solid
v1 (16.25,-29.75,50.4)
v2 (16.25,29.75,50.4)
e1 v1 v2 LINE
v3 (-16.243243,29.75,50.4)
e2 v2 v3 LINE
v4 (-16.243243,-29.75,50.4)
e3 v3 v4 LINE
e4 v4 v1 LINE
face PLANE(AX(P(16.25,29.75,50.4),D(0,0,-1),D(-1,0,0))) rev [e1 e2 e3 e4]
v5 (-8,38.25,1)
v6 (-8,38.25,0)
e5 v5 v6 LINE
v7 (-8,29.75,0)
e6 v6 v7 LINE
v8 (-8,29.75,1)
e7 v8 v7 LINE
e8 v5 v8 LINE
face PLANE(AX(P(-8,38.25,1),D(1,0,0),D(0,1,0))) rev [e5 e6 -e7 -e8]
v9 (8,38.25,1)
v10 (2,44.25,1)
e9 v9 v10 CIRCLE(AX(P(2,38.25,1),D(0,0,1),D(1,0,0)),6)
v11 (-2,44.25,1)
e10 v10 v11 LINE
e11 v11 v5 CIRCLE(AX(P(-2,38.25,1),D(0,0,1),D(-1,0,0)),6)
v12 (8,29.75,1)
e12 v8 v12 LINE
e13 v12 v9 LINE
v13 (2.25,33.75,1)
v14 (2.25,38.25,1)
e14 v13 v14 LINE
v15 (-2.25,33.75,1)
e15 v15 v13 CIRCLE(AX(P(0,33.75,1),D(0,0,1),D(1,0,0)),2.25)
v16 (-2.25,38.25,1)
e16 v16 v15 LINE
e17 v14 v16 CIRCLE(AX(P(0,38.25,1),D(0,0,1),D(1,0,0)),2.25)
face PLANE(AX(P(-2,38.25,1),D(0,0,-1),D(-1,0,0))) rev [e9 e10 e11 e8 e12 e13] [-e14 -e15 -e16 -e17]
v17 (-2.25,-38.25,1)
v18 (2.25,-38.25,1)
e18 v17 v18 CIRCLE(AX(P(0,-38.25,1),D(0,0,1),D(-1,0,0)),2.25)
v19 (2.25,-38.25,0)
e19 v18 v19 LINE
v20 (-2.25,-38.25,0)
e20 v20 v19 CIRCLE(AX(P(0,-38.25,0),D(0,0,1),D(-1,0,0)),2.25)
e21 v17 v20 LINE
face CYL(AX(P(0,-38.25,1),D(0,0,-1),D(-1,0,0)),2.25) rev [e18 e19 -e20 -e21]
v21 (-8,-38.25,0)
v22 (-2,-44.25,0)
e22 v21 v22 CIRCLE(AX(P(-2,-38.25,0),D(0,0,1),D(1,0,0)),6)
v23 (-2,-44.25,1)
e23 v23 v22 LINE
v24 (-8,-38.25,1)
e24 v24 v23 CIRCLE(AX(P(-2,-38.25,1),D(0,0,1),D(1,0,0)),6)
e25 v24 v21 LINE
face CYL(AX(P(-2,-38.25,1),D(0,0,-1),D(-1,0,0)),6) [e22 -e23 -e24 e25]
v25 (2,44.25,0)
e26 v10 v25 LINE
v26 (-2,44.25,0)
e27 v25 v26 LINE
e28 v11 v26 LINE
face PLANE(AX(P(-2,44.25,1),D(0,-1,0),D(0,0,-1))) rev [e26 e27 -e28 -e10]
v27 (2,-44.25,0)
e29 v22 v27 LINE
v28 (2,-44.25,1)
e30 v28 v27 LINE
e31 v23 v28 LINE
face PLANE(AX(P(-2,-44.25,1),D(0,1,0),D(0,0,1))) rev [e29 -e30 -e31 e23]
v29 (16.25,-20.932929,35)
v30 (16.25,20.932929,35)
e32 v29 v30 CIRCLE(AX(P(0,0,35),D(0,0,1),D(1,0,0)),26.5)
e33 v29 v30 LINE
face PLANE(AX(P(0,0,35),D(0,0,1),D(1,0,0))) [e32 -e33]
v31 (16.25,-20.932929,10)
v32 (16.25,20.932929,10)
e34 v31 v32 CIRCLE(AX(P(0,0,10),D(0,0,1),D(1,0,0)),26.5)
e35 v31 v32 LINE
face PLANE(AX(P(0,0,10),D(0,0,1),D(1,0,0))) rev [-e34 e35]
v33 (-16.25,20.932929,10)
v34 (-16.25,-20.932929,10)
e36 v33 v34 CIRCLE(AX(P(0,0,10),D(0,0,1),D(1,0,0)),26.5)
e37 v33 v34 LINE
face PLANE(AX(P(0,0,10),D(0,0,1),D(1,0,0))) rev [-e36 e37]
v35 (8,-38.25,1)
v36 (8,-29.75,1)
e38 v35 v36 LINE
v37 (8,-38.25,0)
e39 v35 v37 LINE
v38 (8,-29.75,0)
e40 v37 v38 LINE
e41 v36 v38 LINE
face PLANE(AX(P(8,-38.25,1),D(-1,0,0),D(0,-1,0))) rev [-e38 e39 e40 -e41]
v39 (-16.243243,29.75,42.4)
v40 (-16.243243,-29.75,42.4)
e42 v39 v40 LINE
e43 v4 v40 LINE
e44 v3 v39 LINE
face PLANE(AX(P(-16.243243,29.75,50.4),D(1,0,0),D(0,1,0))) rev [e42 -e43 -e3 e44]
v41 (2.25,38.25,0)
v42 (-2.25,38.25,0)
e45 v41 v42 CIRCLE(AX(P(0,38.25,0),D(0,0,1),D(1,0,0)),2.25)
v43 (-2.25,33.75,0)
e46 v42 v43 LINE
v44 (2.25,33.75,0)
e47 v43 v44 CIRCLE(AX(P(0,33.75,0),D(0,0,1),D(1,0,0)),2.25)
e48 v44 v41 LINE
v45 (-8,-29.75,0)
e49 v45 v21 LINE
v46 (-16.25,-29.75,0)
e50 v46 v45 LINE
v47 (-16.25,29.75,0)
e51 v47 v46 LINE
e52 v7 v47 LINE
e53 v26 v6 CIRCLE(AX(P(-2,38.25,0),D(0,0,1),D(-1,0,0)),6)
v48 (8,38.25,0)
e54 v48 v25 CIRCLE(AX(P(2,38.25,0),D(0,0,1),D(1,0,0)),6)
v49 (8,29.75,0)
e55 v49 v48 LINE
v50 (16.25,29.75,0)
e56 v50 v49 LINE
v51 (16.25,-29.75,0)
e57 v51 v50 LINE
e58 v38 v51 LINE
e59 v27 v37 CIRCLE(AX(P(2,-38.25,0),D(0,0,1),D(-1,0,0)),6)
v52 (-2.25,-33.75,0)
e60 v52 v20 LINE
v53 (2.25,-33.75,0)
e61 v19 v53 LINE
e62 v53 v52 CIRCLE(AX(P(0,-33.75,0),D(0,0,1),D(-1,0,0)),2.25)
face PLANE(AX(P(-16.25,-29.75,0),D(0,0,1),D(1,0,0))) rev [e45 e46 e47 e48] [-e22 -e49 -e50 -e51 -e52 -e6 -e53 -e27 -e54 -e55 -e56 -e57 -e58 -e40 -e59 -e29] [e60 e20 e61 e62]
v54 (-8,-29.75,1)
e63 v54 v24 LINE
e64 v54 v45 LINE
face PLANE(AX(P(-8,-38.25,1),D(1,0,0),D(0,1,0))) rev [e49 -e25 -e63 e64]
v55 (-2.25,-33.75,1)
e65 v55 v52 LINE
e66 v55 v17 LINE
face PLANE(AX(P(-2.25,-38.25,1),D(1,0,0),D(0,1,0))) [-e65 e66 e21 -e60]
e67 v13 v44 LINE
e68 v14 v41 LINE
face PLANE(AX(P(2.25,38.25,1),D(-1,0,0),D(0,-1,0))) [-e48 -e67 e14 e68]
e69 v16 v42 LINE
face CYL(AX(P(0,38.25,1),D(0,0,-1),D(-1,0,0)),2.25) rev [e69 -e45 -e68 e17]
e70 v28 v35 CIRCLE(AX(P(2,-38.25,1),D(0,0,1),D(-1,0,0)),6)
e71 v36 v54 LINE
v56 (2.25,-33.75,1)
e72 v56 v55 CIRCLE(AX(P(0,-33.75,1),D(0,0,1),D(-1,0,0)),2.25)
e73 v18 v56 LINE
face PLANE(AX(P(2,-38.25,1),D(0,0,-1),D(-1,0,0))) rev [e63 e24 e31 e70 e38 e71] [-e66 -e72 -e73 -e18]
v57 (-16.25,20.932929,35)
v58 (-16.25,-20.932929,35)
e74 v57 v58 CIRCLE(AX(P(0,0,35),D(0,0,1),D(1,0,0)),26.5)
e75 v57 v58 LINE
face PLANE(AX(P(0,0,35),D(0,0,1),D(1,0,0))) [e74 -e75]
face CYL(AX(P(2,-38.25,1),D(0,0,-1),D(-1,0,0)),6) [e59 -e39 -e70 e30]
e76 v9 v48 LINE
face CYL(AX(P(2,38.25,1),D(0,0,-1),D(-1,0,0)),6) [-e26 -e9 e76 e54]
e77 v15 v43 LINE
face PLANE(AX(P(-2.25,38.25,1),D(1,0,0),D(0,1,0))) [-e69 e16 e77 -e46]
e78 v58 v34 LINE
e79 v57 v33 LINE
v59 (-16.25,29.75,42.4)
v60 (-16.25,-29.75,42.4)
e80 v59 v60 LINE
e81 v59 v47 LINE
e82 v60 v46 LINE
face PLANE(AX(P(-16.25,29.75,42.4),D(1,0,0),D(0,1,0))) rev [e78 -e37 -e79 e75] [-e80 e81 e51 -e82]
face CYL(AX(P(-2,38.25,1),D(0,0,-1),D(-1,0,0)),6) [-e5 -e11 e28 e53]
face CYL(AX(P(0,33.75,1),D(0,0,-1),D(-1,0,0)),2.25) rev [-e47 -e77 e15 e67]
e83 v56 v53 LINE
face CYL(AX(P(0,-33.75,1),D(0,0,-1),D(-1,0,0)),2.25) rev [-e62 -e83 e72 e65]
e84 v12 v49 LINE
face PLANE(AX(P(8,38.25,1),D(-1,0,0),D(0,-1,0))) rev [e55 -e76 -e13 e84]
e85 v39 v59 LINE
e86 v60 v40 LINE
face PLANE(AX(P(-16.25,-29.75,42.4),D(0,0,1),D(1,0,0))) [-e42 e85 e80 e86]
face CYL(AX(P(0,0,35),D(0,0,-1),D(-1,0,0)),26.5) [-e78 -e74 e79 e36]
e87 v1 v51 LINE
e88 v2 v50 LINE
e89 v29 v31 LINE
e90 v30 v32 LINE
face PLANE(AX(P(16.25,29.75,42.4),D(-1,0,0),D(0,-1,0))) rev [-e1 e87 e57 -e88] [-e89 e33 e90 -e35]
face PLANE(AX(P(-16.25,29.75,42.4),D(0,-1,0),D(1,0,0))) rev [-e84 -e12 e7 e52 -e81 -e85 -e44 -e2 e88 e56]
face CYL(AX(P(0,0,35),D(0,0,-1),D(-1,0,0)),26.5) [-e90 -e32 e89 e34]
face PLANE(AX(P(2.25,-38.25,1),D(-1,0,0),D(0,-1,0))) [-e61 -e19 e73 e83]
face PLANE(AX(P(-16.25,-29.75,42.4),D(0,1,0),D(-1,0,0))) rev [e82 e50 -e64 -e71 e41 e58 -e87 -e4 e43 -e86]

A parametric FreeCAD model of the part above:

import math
import FreeCAD as App
import Part
import Sketcher


def add_polygon(sketch, points):
    """Adds a closed chain of lines whose ends are joined by coincident constraints."""
    first, n = sketch.GeometryCount, len(points)
    for a, b in zip(points, points[1:] + points[:1]):
        sketch.addGeometry(Part.LineSegment(App.Vector(*a, 0), App.Vector(*b, 0)), False)
    for i in range(n):
        sketch.addConstraint(Sketcher.Constraint("Coincident", first + i, 2, first + (i + 1) % n, 1))

doc = App.newDocument("Part")
params = doc.addObject("Spreadsheet::Sheet", "Params")
for row, (alias, value) in enumerate([
    ("sketch1_width", "32.5 mm"),
    ("sketch1_height", "59.5 mm"),
    ("pad1_length", "42.4 mm"),
    ("sketch2_radius", "26.5 mm"),
    ("sketch2_width", "32.5 mm"),
    ("pad2_length", "25 mm"),
    ("sketch3_radius", "6 mm"),
    ("sketch3_width", "4 mm"),
    ("sketch3_radius2", "2.25 mm"),
    ("sketch3_height", "8.5 mm"),
    ("sketch3_height2", "4.5 mm"),
    ("pad3_length", "1 mm"),
    ("sketch4_height", "59.5 mm"),
    ("pad4_length", "8 mm"),
], start=1):
    params.set(f"A{row}", alias)
    params.set(f"B{row}", "=" + value)
    params.setAlias(f"B{row}", alias)

body = doc.addObject("PartDesign::Body", "Body")

sketch1 = body.newObject("Sketcher::SketchObject", "Sketch")
sketch1.AttachmentSupport = (doc.getObject("XY_Plane"), [""])
sketch1.MapMode = "FlatFace"
add_polygon(sketch1, [(-16, 30), (-16, -30), (16, -30), (16, 30)])
sketch1.addConstraint([
    Sketcher.Constraint("Vertical", 0),
    Sketcher.Constraint("Horizontal", 1),
    Sketcher.Constraint("Vertical", 2),
    Sketcher.Constraint("Horizontal", 3),
    Sketcher.Constraint("Symmetric", 0, 2, 2, 2, -1, 1),
    Sketcher.Constraint("DistanceX", 1, 1, 1, 2, 32.5),
    Sketcher.Constraint("DistanceY", 0, 2, 0, 1, 59.5),
])
sketch1.setExpression("Constraints[9]", "Params.sketch1_width")
sketch1.setExpression("Constraints[10]", "Params.sketch1_height")
pad1 = body.newObject("PartDesign::Pad", "Pad")
pad1.Profile = sketch1
pad1.setExpression("Length", "Params.pad1_length")

sketch2 = body.newObject("Sketcher::SketchObject", "Sketch001")
sketch2.AttachmentSupport = (doc.getObject("XY_Plane"), [""])
sketch2.MapMode = "FlatFace"
sketch2.AttachmentOffset = App.Placement(App.Vector(0, 0, 10), App.Rotation())
sketch2.addGeometry([
    Part.LineSegment(App.Vector(16, 21, 0), App.Vector(-16, 21, 0)),
    Part.ArcOfCircle(Part.Circle(App.Vector(0, 0, 0), App.Vector(0, 0, 1), 26), math.radians(128), math.radians(232)),
    Part.LineSegment(App.Vector(-16, -21, 0), App.Vector(16, -21, 0)),
    Part.ArcOfCircle(Part.Circle(App.Vector(0, 0, 0), App.Vector(0, 0, 1), 26), math.radians(-52), math.radians(52)),
], False)
sketch2.addConstraint([
    Sketcher.Constraint("Coincident", 0, 2, 1, 1),
    Sketcher.Constraint("Coincident", 1, 2, 2, 1),
    Sketcher.Constraint("Coincident", 2, 2, 3, 1),
    Sketcher.Constraint("Coincident", 3, 2, 0, 1),
    Sketcher.Constraint("Horizontal", 0),
    Sketcher.Constraint("Horizontal", 2),
    Sketcher.Constraint("Coincident", 1, 3, -1, 1),
    Sketcher.Constraint("Coincident", 3, 3, -1, 1),
    Sketcher.Constraint("Equal", 1, 3),
    Sketcher.Constraint("Vertical", 0, 2, 1, 2),
    Sketcher.Constraint("Radius", 1, 26.5),
    Sketcher.Constraint("DistanceX", 0, 2, 0, 1, 32.5),
])
sketch2.setExpression("Constraints[10]", "Params.sketch2_radius")
sketch2.setExpression("Constraints[11]", "Params.sketch2_width")
pad2 = body.newObject("PartDesign::Pad", "Pad001")
pad2.Profile = sketch2
pad2.setExpression("Length", "Params.pad2_length")

sketch3 = body.newObject("Sketcher::SketchObject", "Sketch002")
sketch3.AttachmentSupport = (doc.getObject("XY_Plane"), [""])
sketch3.MapMode = "FlatFace"
sketch3.addGeometry([
    Part.LineSegment(App.Vector(2, 44.2, 0), App.Vector(-2, 44.2, 0)),
    Part.ArcOfCircle(Part.Circle(App.Vector(-2, 38.2, 0), App.Vector(0, 0, 1), 6), math.radians(90), math.radians(180)),
    Part.LineSegment(App.Vector(-8, 38.2, 0), App.Vector(-8, 29.8, 0)),
    Part.LineSegment(App.Vector(-8, 29.8, 0), App.Vector(8, 29.8, 0)),
    Part.LineSegment(App.Vector(8, 29.8, 0), App.Vector(8, 38.2, 0)),
    Part.ArcOfCircle(Part.Circle(App.Vector(2, 38.2, 0), App.Vector(0, 0, 1), 6), math.radians(0), math.radians(90)),
    Part.ArcOfCircle(Part.Circle(App.Vector(0, 38.2, 0), App.Vector(0, 0, 1), 2.2), math.radians(0), math.radians(180)),
    Part.LineSegment(App.Vector(2.2, 38.2, 0), App.Vector(2.2, 33.8, 0)),
    Part.ArcOfCircle(Part.Circle(App.Vector(0, 33.8, 0), App.Vector(0, 0, 1), 2.2), math.radians(180), math.radians(360)),
    Part.LineSegment(App.Vector(-2.2, 33.8, 0), App.Vector(-2.2, 38.2, 0)),
    Part.LineSegment(App.Vector(-2, -44.2, 0), App.Vector(2, -44.2, 0)),
    Part.ArcOfCircle(Part.Circle(App.Vector(2, -38.2, 0), App.Vector(0, 0, 1), 6), math.radians(-90), math.radians(0)),
    Part.LineSegment(App.Vector(8, -38.2, 0), App.Vector(8, -29.8, 0)),
    Part.LineSegment(App.Vector(8, -29.8, 0), App.Vector(-8, -29.8, 0)),
    Part.LineSegment(App.Vector(-8, -29.8, 0), App.Vector(-8, -38.2, 0)),
    Part.ArcOfCircle(Part.Circle(App.Vector(-2, -38.2, 0), App.Vector(0, 0, 1), 6), math.radians(180), math.radians(270)),
    Part.LineSegment(App.Vector(2.2, -33.8, 0), App.Vector(2.2, -38.2, 0)),
    Part.ArcOfCircle(Part.Circle(App.Vector(0, -38.2, 0), App.Vector(0, 0, 1), 2.2), math.radians(180), math.radians(360)),
    Part.LineSegment(App.Vector(-2.2, -38.2, 0), App.Vector(-2.2, -33.8, 0)),
    Part.ArcOfCircle(Part.Circle(App.Vector(0, -33.8, 0), App.Vector(0, 0, 1), 2.2), math.radians(0), math.radians(180)),
], False)
sketch3.addConstraint([
    Sketcher.Constraint("Tangent", 0, 2, 1, 1),
    Sketcher.Constraint("Tangent", 1, 2, 2, 1),
    Sketcher.Constraint("Coincident", 2, 2, 3, 1),
    Sketcher.Constraint("Coincident", 3, 2, 4, 1),
    Sketcher.Constraint("Tangent", 4, 2, 5, 1),
    Sketcher.Constraint("Tangent", 5, 2, 0, 1),
    Sketcher.Constraint("Tangent", 6, 1, 7, 1),
    Sketcher.Constraint("Tangent", 7, 2, 8, 2),
    Sketcher.Constraint("Tangent", 8, 1, 9, 1),
    Sketcher.Constraint("Tangent", 9, 2, 6, 2),
    Sketcher.Constraint("Tangent", 10, 2, 11, 1),
    Sketcher.Constraint("Tangent", 11, 2, 12, 1),
    Sketcher.Constraint("Coincident", 12, 2, 13, 1),
    Sketcher.Constraint("Coincident", 13, 2, 14, 1),
    Sketcher.Constraint("Tangent", 14, 2, 15, 1),
    Sketcher.Constraint("Tangent", 15, 2, 10, 1),
    Sketcher.Constraint("Tangent", 16, 2, 17, 2),
    Sketcher.Constraint("Tangent", 17, 1, 18, 1),
    Sketcher.Constraint("Tangent", 18, 2, 19, 2),
    Sketcher.Constraint("Tangent", 19, 1, 16, 1),
    Sketcher.Constraint("Horizontal", 0),
    Sketcher.Constraint("Vertical", 2),
    Sketcher.Constraint("Horizontal", 3),
    Sketcher.Constraint("Vertical", 4),
    Sketcher.Constraint("Vertical", 7),
    Sketcher.Constraint("Vertical", 9),
    Sketcher.Constraint("Horizontal", 10),
    Sketcher.Constraint("Vertical", 12),
    Sketcher.Constraint("Horizontal", 13),
    Sketcher.Constraint("Vertical", 14),
    Sketcher.Constraint("Vertical", 16),
    Sketcher.Constraint("Vertical", 18),
    Sketcher.Constraint("Equal", 1, 5),
    Sketcher.Constraint("Equal", 5, 11),
    Sketcher.Constraint("Equal", 11, 15),
    Sketcher.Constraint("Equal", 8, 17),
    Sketcher.Constraint("Symmetric", 1, 3, 11, 3, -1, 1),
    Sketcher.Constraint("Symmetric", 6, 3, 17, 3, -1, 1),
    Sketcher.Constraint("Symmetric", 3, 2, 13, 2, -1, 1),
    Sketcher.Constraint("Symmetric", 8, 3, 19, 3, -1),
    Sketcher.Constraint("Horizontal", 5, 3, 6, 3),
    Sketcher.Constraint("Vertical", 5, 3, 11, 3),
    Sketcher.Constraint("Radius", 1, 6.0),
    Sketcher.Constraint("DistanceX", 0, 2, 0, 1, 4.0),
    Sketcher.Constraint("Radius", 6, 2.25),
    Sketcher.Constraint("DistanceY", 2, 2, 2, 1, 8.5),
    Sketcher.Constraint("DistanceY", 7, 2, 7, 1, 4.5),
    Sketcher.Constraint("DistanceY", 11, 3, 8, 3, 72.0),
])
sketch3.setExpression("Constraints[42]", "Params.sketch3_radius")
sketch3.setExpression("Constraints[43]", "Params.sketch3_width")
sketch3.setExpression("Constraints[44]", "Params.sketch3_radius2")
sketch3.setExpression("Constraints[45]", "Params.sketch3_height")
sketch3.setExpression("Constraints[46]", "Params.sketch3_height2")
pad3 = body.newObject("PartDesign::Pad", "Pad002")
pad3.Profile = sketch3
pad3.setExpression("Length", "Params.pad3_length")

sketch4 = body.newObject("Sketcher::SketchObject", "Sketch003")
sketch4.AttachmentSupport = (doc.getObject("XY_Plane"), [""])
sketch4.MapMode = "FlatFace"
sketch4.AttachmentOffset = App.Placement(App.Vector(0, 0, 42.4), App.Rotation())
add_polygon(sketch4, [(-16, 30), (-16, -30), (16, -30), (16, 30)])
sketch4.addConstraint([
    Sketcher.Constraint("Vertical", 0),
    Sketcher.Constraint("Horizontal", 1),
    Sketcher.Constraint("Vertical", 2),
    Sketcher.Constraint("Horizontal", 3),
    Sketcher.Constraint("DistanceY", 0, 2, 0, 1, 59.5),
    Sketcher.Constraint("DistanceY", 0, 2, -1, 1, 29.75),
    Sketcher.Constraint("DistanceX", -1, 1, 1, 2, 16.25),
    Sketcher.Constraint("DistanceX", 1, 1, 1, 2, 32.493243),
])
sketch4.setExpression("Constraints[8]", "Params.sketch4_height")
pad4 = body.newObject("PartDesign::Pad", "Pad003")
pad4.Profile = sketch4
pad4.setExpression("Length", "Params.pad4_length")

doc.recompute()
